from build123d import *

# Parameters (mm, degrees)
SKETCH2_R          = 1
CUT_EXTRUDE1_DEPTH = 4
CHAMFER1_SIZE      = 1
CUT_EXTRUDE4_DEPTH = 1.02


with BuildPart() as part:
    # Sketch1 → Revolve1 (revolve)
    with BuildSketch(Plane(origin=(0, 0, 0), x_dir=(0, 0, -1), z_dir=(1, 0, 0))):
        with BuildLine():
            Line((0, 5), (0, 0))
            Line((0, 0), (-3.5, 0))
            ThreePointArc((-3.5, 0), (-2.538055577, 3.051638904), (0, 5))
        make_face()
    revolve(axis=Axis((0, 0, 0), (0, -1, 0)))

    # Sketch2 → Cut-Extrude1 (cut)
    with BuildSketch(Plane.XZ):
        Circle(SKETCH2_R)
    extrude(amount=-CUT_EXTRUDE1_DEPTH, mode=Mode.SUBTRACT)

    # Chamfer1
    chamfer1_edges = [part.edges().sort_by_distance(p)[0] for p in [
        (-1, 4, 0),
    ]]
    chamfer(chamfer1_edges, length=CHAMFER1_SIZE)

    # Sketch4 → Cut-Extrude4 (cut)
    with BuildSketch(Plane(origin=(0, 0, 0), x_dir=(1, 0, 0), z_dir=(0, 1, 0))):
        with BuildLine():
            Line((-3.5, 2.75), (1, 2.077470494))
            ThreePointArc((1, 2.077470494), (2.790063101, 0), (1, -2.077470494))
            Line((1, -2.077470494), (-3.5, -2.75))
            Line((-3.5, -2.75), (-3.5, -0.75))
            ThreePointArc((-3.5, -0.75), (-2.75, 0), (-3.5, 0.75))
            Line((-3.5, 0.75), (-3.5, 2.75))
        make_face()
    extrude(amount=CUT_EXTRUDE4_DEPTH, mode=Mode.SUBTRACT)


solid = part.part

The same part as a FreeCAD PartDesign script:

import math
import FreeCAD as App
import Part
import Sketcher

V = App.Vector
Q = App.Units.Quantity


def edges_at(feature, points):
    """Names of the edges that pass closest to the given points."""
    edges = feature.Shape.Edges
    near = lambda p: min(range(len(edges)), key=lambda i: edges[i].distToShape(Part.Vertex(*p))[0])
    return sorted({f"Edge{near(p) + 1}" for p in points})

doc = App.newDocument("Part")
body = doc.addObject("PartDesign::Body", "Body")

# Sketch on YZ plane
sketch1 = body.newObject("Sketcher::SketchObject", "Sketch")
sketch1.AttachmentSupport = (doc.getObject("YZ_Plane"), [""])
sketch1.MapMode = "FlatFace"
sketch1.addGeometry([
    Part.LineSegment(V(0, 0, 0), V(5, 0, 0)),
    Part.ArcOfCircle(Part.Circle(V(0, -1.821429, 0), V(0, 0, 1), 5.321429), math.radians(20.01596), math.radians(90)),
    Part.LineSegment(V(0, 3.5, 0), V(0, 0, 0)),
], False)
sketch1.addConstraint([
    Sketcher.Constraint("Coincident", 0, 2, 1, 1),
    Sketcher.Constraint("Coincident", 1, 2, 2, 1),
    Sketcher.Constraint("Coincident", 2, 2, 0, 1),
    Sketcher.Constraint("Horizontal", 0),
    Sketcher.Constraint("Vertical", 2),
    Sketcher.Constraint("Coincident", 2, 2, -1, 1),
    Sketcher.Constraint("PointOnObject", 1, 3, -2),
    Sketcher.Constraint("DistanceX", 0, 1, 0, 2, Q("5 mm")),
    Sketcher.Constraint("DistanceY", 2, 2, 2, 1, Q("3.5 mm")),
])
revolution = body.newObject("PartDesign::Revolution", "Revolution")
revolution.Profile = sketch1
revolution.ReferenceAxis = (sketch1, ["H_Axis"])
revolution.Angle = 360

# Sketch on XZ plane
sketch2 = body.newObject("Sketcher::SketchObject", "Sketch001")
sketch2.AttachmentSupport = (doc.getObject("XZ_Plane"), [""])
sketch2.MapMode = "FlatFace"
sketch2.addGeometry(Part.Circle(V(0, 0, 0), V(0, 0, 1), 1), False)
sketch2.addConstraint([
    Sketcher.Constraint("Coincident", 0, 3, -1, 1),
    Sketcher.Constraint("Diameter", 0, Q("2 mm")),
])
pocket1 = body.newObject("PartDesign::Pocket", "Pocket")
pocket1.Profile = sketch2
pocket1.Length = 4
doc.recompute()

chamfer = body.newObject("PartDesign::Chamfer", "Chamfer")
chamfer.Base = (pocket1, edges_at(pocket1, [(-1, 4, 0)]))
chamfer.Size = 1

# Sketch on XZ plane
sketch3 = body.newObject("Sketcher::SketchObject", "Sketch002")
sketch3.AttachmentSupport = (doc.getObject("XZ_Plane"), [""])
sketch3.MapMode = "FlatFace"
sketch3.addGeometry([
    Part.LineSegment(V(1, -2.07747, 0), V(-3.5, -2.75, 0)),  # 0
    Part.LineSegment(V(-3.5, -2.75, 0), V(-3.5, -0.75, 0)),  # 1
    Part.ArcOfCircle(Part.Circle(V(-3.5, 0, 0), V(0, 0, 1), 0.75), math.radians(-90), math.radians(90)),  # 2
    Part.LineSegment(V(-3.5, 0.75, 0), V(-3.5, 2.75, 0)),  # 3
    Part.LineSegment(V(-3.5, 2.75, 0), V(1, 2.07747, 0)),  # 4
    Part.ArcOfCircle(Part.Circle(V(0.68952, 0, 0), V(0, 0, 1), 2.100543), math.radians(-81.5), math.radians(81.5)),  # 5
], False)
sketch3.addConstraint([
    Sketcher.Constraint("Coincident", 0, 2, 1, 1),
    Sketcher.Constraint("Coincident", 1, 2, 2, 1),
    Sketcher.Constraint("Coincident", 2, 2, 3, 1),
    Sketcher.Constraint("Coincident", 3, 2, 4, 1),
    Sketcher.Constraint("Tangent", 4, 2, 5, 2),
    Sketcher.Constraint("Tangent", 5, 1, 0, 1),
    Sketcher.Constraint("Vertical", 1),
    Sketcher.Constraint("Vertical", 3),
    Sketcher.Constraint("Symmetric", 1, 2, 2, 2, -1),
    Sketcher.Constraint("Symmetric", 4, 2, 5, 1, -1),
    Sketcher.Constraint("Vertical", 2, 3, 0, 2),
    Sketcher.Constraint("DistanceY", 1, 1, 1, 2, Q("2 mm")),
    Sketcher.Constraint("Radius", 2, Q("0.75 mm")),
    Sketcher.Constraint("DistanceX", -1, 1, 4, 2, Q("1 mm")),
    Sketcher.Constraint("Angle", 0, Q("-171.5 deg")),
    Sketcher.Constraint("DistanceX", 2, 3, -1, 1, Q("3.5 mm")),
])
pocket2 = body.newObject("PartDesign::Pocket", "Pocket001")
pocket2.Profile = sketch3
pocket2.Length = 1.02

doc.recompute()
